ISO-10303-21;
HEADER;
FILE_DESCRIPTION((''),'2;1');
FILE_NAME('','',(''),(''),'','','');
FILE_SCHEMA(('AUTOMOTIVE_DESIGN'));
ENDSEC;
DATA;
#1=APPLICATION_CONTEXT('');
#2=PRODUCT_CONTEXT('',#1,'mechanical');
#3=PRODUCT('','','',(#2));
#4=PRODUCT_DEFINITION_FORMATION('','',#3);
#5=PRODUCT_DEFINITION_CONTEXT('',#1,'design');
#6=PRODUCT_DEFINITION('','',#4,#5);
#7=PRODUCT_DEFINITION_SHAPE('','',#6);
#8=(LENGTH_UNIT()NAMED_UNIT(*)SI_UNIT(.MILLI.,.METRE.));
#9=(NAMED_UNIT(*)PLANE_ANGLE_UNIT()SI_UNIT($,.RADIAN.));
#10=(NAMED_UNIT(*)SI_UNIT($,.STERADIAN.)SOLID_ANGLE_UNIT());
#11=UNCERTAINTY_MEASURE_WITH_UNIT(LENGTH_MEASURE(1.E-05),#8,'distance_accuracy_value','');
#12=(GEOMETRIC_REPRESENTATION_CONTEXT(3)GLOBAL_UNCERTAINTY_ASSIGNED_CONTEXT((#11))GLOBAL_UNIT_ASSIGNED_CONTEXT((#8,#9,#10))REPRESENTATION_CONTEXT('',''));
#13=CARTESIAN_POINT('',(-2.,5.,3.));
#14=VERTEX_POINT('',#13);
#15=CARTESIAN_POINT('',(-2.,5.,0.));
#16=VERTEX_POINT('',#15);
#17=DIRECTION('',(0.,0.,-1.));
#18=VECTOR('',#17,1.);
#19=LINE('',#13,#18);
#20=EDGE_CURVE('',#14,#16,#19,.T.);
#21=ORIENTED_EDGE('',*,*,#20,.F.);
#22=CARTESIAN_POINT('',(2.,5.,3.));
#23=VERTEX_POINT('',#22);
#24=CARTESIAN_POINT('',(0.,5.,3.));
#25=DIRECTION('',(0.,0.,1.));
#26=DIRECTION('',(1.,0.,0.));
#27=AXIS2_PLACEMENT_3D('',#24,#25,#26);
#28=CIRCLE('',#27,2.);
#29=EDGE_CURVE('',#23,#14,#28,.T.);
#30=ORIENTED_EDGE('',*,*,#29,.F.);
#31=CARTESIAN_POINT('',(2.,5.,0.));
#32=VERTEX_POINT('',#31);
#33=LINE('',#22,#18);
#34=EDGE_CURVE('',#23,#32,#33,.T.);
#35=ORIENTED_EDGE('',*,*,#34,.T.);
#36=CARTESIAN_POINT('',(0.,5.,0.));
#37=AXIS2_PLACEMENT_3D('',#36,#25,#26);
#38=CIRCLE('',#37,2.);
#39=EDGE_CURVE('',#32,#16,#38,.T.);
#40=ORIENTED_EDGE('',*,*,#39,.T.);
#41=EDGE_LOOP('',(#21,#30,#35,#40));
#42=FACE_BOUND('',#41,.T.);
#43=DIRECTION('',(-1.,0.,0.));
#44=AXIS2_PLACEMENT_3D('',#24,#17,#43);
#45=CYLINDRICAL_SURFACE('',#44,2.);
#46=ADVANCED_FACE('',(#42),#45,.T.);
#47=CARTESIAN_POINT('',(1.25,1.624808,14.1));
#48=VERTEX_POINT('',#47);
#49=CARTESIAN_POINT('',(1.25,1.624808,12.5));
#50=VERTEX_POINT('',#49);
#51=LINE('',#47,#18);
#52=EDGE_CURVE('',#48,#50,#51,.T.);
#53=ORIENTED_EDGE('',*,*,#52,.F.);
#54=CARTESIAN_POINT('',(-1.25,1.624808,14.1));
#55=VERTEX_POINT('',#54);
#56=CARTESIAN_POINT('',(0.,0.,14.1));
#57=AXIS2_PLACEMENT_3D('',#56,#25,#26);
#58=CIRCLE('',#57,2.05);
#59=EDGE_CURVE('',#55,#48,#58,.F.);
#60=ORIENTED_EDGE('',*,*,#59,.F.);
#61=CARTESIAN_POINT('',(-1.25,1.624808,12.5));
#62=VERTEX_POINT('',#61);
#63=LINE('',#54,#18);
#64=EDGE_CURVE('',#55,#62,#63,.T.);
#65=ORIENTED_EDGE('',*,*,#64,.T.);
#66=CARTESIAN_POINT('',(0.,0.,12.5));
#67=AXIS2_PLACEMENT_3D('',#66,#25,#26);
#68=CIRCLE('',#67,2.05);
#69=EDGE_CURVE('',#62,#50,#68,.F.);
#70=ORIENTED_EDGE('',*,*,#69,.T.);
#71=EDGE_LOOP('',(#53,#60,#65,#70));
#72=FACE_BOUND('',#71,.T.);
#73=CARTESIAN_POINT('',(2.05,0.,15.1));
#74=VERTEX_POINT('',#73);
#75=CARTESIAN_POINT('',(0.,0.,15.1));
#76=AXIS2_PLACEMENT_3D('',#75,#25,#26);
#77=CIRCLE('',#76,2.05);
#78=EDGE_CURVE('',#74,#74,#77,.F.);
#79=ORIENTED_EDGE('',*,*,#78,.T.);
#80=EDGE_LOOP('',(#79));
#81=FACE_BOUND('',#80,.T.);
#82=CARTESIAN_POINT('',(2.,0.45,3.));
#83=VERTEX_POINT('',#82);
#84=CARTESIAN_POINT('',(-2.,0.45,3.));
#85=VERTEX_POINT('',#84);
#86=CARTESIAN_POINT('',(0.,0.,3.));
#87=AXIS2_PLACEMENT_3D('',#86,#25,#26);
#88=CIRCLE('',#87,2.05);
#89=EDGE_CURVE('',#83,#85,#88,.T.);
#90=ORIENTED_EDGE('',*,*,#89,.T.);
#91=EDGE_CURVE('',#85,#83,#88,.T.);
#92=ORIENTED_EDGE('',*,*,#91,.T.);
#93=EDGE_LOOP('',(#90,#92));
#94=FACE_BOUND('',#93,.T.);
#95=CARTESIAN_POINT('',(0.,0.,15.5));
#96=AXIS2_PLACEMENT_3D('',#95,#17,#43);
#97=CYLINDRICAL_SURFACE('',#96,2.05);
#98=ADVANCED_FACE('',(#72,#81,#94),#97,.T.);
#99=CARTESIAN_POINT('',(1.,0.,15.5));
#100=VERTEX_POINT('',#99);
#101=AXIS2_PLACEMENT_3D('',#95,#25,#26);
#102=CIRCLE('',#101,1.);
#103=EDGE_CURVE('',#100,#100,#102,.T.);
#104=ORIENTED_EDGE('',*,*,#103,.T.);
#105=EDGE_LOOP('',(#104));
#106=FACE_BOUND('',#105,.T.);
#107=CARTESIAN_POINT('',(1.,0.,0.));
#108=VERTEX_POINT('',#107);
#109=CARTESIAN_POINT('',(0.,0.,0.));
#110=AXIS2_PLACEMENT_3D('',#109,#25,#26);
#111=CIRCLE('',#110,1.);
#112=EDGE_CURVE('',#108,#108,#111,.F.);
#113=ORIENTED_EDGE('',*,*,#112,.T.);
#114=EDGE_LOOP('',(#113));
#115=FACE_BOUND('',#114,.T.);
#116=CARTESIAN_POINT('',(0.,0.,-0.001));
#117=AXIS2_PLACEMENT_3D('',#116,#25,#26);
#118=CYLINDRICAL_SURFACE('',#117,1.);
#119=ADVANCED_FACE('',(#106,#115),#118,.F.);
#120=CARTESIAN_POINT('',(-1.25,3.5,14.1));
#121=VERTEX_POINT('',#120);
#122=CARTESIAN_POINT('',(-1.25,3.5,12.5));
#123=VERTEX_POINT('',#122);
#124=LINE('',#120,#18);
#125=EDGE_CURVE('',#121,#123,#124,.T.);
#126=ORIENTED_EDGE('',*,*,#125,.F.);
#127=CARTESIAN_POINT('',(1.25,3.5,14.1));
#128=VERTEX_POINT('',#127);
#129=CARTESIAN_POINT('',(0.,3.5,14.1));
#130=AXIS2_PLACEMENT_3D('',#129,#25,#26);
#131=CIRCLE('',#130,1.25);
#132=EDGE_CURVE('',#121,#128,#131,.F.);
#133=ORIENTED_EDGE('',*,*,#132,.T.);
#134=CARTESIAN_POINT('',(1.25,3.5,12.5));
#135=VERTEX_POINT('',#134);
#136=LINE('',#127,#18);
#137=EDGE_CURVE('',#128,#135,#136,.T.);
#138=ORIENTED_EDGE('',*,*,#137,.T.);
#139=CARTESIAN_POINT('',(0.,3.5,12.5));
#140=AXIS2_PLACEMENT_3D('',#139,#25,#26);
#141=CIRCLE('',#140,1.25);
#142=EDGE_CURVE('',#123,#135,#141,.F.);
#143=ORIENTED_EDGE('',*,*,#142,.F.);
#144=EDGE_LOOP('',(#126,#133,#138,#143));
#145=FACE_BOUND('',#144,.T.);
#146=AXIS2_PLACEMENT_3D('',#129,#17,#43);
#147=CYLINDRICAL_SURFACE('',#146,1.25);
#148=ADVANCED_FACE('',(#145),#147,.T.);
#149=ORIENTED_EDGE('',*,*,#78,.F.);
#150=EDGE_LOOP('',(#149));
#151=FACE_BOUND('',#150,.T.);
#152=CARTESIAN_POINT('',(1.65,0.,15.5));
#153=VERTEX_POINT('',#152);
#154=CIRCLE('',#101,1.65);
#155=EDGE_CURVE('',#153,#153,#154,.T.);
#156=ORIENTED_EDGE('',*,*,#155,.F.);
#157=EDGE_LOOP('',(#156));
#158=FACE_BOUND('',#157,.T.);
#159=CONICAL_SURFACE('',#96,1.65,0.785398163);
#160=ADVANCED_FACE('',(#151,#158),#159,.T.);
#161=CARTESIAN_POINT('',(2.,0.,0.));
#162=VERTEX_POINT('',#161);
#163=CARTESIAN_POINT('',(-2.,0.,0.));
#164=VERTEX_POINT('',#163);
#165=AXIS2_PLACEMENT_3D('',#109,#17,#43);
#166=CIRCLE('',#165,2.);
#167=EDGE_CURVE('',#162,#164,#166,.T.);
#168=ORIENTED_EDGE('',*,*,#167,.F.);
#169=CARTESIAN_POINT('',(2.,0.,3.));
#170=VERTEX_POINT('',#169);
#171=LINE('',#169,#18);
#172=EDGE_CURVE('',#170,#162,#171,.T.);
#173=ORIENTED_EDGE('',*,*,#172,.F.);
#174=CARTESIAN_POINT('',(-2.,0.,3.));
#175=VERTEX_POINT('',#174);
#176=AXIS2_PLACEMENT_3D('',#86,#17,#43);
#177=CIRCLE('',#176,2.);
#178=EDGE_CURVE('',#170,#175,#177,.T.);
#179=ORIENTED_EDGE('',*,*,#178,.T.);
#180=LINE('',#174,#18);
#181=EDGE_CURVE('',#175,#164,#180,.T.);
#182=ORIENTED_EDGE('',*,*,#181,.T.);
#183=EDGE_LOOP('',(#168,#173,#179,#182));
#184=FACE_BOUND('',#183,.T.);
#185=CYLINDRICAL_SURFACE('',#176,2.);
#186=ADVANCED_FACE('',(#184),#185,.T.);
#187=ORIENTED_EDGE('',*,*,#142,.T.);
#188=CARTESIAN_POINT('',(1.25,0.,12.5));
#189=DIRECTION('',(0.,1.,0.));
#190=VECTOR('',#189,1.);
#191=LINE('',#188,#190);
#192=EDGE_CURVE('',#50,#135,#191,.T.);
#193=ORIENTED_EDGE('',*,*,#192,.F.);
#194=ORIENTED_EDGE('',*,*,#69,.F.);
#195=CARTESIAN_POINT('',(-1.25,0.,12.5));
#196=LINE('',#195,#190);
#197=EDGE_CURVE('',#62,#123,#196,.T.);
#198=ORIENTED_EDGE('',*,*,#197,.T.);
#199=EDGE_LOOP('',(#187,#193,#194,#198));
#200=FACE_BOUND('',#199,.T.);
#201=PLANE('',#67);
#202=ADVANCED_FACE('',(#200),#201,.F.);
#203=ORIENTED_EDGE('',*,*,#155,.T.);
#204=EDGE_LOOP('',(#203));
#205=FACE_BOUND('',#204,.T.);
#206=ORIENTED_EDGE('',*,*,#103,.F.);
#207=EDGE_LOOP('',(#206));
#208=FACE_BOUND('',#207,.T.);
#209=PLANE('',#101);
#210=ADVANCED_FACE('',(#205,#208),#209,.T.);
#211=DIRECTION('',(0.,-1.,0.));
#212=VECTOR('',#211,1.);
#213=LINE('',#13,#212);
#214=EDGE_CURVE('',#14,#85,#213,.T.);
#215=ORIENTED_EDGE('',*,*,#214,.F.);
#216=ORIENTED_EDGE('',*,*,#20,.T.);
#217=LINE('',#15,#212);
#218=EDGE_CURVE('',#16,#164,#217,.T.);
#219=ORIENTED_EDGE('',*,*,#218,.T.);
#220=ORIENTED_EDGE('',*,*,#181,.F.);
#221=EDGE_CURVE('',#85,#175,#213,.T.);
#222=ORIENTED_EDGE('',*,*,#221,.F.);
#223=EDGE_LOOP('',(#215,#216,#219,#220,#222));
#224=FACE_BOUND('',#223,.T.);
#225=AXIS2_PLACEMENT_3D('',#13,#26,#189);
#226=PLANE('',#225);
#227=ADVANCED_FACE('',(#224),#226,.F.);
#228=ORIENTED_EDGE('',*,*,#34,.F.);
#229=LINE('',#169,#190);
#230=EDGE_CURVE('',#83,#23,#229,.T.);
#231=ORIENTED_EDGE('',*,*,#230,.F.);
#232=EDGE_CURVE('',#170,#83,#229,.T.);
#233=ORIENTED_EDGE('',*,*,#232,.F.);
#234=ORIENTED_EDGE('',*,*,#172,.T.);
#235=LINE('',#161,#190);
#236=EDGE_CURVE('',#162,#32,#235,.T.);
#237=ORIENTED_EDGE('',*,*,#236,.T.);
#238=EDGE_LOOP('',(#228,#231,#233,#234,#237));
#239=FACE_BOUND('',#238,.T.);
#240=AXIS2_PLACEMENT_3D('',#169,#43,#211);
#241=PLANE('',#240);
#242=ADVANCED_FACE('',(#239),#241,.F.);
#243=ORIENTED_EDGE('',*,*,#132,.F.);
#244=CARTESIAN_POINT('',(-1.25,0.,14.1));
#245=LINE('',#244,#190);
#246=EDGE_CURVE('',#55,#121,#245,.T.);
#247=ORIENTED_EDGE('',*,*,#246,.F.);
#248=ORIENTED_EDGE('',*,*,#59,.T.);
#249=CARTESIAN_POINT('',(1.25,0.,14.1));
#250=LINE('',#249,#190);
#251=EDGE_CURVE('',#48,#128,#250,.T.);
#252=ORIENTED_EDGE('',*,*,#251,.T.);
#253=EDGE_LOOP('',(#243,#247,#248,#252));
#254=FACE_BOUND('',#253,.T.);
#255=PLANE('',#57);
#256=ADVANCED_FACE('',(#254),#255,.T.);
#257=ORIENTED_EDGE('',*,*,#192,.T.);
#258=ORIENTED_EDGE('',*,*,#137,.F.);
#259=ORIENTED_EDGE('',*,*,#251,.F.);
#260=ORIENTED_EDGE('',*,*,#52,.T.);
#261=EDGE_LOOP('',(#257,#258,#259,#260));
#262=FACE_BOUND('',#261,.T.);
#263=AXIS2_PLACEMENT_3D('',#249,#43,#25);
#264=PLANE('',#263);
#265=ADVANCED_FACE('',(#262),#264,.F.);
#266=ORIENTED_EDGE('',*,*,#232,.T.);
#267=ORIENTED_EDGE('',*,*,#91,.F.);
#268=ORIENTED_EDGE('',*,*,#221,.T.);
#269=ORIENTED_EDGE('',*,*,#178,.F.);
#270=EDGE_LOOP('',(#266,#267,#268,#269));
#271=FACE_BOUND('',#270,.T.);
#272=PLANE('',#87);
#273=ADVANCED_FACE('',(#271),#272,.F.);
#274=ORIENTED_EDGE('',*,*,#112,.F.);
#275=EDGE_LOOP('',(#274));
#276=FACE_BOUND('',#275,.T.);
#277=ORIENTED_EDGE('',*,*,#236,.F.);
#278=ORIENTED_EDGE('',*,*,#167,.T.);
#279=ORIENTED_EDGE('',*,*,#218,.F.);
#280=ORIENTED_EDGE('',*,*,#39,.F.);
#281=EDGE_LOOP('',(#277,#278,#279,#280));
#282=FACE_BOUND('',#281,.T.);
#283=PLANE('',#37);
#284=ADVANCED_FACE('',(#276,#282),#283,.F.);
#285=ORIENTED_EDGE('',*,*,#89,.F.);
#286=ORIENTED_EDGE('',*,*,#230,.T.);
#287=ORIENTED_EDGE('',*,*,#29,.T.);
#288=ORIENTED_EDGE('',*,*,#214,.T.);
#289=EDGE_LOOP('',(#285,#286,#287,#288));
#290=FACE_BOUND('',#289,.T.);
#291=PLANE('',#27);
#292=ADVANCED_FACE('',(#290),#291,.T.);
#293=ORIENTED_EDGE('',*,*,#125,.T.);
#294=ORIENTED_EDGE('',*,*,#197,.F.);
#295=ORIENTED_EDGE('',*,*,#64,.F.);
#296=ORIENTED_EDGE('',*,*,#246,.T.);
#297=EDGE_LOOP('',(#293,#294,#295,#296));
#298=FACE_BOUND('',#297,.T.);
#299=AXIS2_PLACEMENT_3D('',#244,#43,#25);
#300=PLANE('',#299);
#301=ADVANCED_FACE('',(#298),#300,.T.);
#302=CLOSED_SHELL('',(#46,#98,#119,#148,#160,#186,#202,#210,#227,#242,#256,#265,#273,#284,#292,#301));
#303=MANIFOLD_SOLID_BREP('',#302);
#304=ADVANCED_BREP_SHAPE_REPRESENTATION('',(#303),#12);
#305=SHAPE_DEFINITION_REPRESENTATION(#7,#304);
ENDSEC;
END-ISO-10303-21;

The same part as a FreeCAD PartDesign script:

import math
import FreeCAD as App
import Part
import Sketcher


def edges_at(feature, points):
    """Names of the edges that pass closest to the given points."""
    edges = feature.Shape.Edges
    near = lambda p: min(range(len(edges)), key=lambda i: edges[i].distToShape(Part.Vertex(*p))[0])
    return sorted({f"Edge{near(p) + 1}" for p in points})

doc = App.newDocument("Part")
body = doc.addObject("PartDesign::Body", "Body")

# Sketch on XY plane
sketch1 = body.newObject("Sketcher::SketchObject", "Sketch")
sketch1.AttachmentSupport = (doc.getObject("XY_Plane"), [""])
sketch1.MapMode = "FlatFace"
sketch1.addGeometry([
    Part.LineSegment(App.Vector(2, 0, 0), App.Vector(2, 5, 0)),
    Part.ArcOfCircle(Part.Circle(App.Vector(0, 5, 0), App.Vector(0, 0, 1), 2), math.radians(0), math.radians(180)),
    Part.LineSegment(App.Vector(-2, 5, 0), App.Vector(-2, 0, 0)),
    Part.ArcOfCircle(Part.Circle(App.Vector(0, 0, 0), App.Vector(0, 0, 1), 2), math.radians(180), math.radians(360)),
], False)
sketch1.addConstraint([
    Sketcher.Constraint("Tangent", 0, 2, 1, 1),
    Sketcher.Constraint("Tangent", 1, 2, 2, 1),
    Sketcher.Constraint("Tangent", 2, 2, 3, 1),
    Sketcher.Constraint("Tangent", 3, 2, 0, 1),
    Sketcher.Constraint("Vertical", 0),
    Sketcher.Constraint("Vertical", 2),
    Sketcher.Constraint("Coincident", 3, 3, -1, 1),
    Sketcher.Constraint("Radius", 1, 2.0),
    Sketcher.Constraint("DistanceY", 0, 1, 0, 2, 5.0),
])
pad1 = body.newObject("PartDesign::Pad", "Pad")
pad1.Profile = sketch1
pad1.Length = 3

# Sketch on XY plane
sketch2 = body.newObject("Sketcher::SketchObject", "Sketch001")
sketch2.AttachmentSupport = (doc.getObject("XY_Plane"), [""])
sketch2.MapMode = "FlatFace"
sketch2.AttachmentOffset = App.Placement(App.Vector(0, 0, 3), App.Rotation())
sketch2.addGeometry(Part.Circle(App.Vector(0, 0, 0), App.Vector(0, 0, 1), 2), False)
sketch2.addConstraint([
    Sketcher.Constraint("Coincident", 0, 3, -1, 1),
    Sketcher.Constraint("Diameter", 0, 4.1),
])
pad2 = body.newObject("PartDesign::Pad", "Pad001")
pad2.Profile = sketch2
pad2.Length = 12.5

# Sketch on XY plane
sketch3 = body.newObject("Sketcher::SketchObject", "Sketch002")
sketch3.AttachmentSupport = (doc.getObject("XY_Plane"), [""])
sketch3.MapMode = "FlatFace"
sketch3.AttachmentOffset = App.Placement(App.Vector(0, 0, 12.5), App.Rotation())
sketch3.addGeometry([
    Part.LineSegment(App.Vector(-1.2, 3.5, 0), App.Vector(-1.2, 1.6, 0)),
    Part.ArcOfCircle(Part.Circle(App.Vector(0, 0, 0), App.Vector(0, 0, 1), 2), math.radians(52), math.radians(128)),
    Part.LineSegment(App.Vector(1.2, 1.6, 0), App.Vector(1.2, 3.5, 0)),
    Part.ArcOfCircle(Part.Circle(App.Vector(0, 3.5, 0), App.Vector(0, 0, 1), 1.2), math.radians(0), math.radians(180)),
], False)
sketch3.addConstraint([
    Sketcher.Constraint("Coincident", 0, 2, 1, 2),
    Sketcher.Constraint("Coincident", 1, 1, 2, 1),
    Sketcher.Constraint("Tangent", 2, 2, 3, 1),
    Sketcher.Constraint("Tangent", 3, 2, 0, 1),
    Sketcher.Constraint("Vertical", 0),
    Sketcher.Constraint("Vertical", 2),
    Sketcher.Constraint("Coincident", 1, 3, -1, 1),
    Sketcher.Constraint("PointOnObject", 3, 3, -2),
    Sketcher.Constraint("Radius", 1, 2.05),
    Sketcher.Constraint("Radius", 3, 1.25),
    Sketcher.Constraint("DistanceY", -1, 1, 3, 3, 3.5),
])
pad3 = body.newObject("PartDesign::Pad", "Pad002")
pad3.Profile = sketch3
pad3.Length = 1.6

# Sketch on XY plane
sketch4 = body.newObject("Sketcher::SketchObject", "Sketch003")
sketch4.AttachmentSupport = (doc.getObject("XY_Plane"), [""])
sketch4.MapMode = "FlatFace"
sketch4.AttachmentOffset = App.Placement(App.Vector(0, 0, 15.5), App.Rotation())
sketch4.addGeometry(Part.Circle(App.Vector(0, 0, 0), App.Vector(0, 0, 1), 1), False)
sketch4.addConstraint([
    Sketcher.Constraint("Coincident", 0, 3, -1, 1),
    Sketcher.Constraint("Diameter", 0, 2.0),
])
pocket1 = body.newObject("PartDesign::Pocket", "Pocket")
pocket1.Profile = sketch4
pocket1.Type = "UpToFirst"
doc.recompute()

chamfer = body.newObject("PartDesign::Chamfer", "Chamfer")
chamfer.Base = (pocket1, edges_at(pocket1, [(2, -0.45, 15.5)]))
chamfer.Size = 0.4

doc.recompute()
